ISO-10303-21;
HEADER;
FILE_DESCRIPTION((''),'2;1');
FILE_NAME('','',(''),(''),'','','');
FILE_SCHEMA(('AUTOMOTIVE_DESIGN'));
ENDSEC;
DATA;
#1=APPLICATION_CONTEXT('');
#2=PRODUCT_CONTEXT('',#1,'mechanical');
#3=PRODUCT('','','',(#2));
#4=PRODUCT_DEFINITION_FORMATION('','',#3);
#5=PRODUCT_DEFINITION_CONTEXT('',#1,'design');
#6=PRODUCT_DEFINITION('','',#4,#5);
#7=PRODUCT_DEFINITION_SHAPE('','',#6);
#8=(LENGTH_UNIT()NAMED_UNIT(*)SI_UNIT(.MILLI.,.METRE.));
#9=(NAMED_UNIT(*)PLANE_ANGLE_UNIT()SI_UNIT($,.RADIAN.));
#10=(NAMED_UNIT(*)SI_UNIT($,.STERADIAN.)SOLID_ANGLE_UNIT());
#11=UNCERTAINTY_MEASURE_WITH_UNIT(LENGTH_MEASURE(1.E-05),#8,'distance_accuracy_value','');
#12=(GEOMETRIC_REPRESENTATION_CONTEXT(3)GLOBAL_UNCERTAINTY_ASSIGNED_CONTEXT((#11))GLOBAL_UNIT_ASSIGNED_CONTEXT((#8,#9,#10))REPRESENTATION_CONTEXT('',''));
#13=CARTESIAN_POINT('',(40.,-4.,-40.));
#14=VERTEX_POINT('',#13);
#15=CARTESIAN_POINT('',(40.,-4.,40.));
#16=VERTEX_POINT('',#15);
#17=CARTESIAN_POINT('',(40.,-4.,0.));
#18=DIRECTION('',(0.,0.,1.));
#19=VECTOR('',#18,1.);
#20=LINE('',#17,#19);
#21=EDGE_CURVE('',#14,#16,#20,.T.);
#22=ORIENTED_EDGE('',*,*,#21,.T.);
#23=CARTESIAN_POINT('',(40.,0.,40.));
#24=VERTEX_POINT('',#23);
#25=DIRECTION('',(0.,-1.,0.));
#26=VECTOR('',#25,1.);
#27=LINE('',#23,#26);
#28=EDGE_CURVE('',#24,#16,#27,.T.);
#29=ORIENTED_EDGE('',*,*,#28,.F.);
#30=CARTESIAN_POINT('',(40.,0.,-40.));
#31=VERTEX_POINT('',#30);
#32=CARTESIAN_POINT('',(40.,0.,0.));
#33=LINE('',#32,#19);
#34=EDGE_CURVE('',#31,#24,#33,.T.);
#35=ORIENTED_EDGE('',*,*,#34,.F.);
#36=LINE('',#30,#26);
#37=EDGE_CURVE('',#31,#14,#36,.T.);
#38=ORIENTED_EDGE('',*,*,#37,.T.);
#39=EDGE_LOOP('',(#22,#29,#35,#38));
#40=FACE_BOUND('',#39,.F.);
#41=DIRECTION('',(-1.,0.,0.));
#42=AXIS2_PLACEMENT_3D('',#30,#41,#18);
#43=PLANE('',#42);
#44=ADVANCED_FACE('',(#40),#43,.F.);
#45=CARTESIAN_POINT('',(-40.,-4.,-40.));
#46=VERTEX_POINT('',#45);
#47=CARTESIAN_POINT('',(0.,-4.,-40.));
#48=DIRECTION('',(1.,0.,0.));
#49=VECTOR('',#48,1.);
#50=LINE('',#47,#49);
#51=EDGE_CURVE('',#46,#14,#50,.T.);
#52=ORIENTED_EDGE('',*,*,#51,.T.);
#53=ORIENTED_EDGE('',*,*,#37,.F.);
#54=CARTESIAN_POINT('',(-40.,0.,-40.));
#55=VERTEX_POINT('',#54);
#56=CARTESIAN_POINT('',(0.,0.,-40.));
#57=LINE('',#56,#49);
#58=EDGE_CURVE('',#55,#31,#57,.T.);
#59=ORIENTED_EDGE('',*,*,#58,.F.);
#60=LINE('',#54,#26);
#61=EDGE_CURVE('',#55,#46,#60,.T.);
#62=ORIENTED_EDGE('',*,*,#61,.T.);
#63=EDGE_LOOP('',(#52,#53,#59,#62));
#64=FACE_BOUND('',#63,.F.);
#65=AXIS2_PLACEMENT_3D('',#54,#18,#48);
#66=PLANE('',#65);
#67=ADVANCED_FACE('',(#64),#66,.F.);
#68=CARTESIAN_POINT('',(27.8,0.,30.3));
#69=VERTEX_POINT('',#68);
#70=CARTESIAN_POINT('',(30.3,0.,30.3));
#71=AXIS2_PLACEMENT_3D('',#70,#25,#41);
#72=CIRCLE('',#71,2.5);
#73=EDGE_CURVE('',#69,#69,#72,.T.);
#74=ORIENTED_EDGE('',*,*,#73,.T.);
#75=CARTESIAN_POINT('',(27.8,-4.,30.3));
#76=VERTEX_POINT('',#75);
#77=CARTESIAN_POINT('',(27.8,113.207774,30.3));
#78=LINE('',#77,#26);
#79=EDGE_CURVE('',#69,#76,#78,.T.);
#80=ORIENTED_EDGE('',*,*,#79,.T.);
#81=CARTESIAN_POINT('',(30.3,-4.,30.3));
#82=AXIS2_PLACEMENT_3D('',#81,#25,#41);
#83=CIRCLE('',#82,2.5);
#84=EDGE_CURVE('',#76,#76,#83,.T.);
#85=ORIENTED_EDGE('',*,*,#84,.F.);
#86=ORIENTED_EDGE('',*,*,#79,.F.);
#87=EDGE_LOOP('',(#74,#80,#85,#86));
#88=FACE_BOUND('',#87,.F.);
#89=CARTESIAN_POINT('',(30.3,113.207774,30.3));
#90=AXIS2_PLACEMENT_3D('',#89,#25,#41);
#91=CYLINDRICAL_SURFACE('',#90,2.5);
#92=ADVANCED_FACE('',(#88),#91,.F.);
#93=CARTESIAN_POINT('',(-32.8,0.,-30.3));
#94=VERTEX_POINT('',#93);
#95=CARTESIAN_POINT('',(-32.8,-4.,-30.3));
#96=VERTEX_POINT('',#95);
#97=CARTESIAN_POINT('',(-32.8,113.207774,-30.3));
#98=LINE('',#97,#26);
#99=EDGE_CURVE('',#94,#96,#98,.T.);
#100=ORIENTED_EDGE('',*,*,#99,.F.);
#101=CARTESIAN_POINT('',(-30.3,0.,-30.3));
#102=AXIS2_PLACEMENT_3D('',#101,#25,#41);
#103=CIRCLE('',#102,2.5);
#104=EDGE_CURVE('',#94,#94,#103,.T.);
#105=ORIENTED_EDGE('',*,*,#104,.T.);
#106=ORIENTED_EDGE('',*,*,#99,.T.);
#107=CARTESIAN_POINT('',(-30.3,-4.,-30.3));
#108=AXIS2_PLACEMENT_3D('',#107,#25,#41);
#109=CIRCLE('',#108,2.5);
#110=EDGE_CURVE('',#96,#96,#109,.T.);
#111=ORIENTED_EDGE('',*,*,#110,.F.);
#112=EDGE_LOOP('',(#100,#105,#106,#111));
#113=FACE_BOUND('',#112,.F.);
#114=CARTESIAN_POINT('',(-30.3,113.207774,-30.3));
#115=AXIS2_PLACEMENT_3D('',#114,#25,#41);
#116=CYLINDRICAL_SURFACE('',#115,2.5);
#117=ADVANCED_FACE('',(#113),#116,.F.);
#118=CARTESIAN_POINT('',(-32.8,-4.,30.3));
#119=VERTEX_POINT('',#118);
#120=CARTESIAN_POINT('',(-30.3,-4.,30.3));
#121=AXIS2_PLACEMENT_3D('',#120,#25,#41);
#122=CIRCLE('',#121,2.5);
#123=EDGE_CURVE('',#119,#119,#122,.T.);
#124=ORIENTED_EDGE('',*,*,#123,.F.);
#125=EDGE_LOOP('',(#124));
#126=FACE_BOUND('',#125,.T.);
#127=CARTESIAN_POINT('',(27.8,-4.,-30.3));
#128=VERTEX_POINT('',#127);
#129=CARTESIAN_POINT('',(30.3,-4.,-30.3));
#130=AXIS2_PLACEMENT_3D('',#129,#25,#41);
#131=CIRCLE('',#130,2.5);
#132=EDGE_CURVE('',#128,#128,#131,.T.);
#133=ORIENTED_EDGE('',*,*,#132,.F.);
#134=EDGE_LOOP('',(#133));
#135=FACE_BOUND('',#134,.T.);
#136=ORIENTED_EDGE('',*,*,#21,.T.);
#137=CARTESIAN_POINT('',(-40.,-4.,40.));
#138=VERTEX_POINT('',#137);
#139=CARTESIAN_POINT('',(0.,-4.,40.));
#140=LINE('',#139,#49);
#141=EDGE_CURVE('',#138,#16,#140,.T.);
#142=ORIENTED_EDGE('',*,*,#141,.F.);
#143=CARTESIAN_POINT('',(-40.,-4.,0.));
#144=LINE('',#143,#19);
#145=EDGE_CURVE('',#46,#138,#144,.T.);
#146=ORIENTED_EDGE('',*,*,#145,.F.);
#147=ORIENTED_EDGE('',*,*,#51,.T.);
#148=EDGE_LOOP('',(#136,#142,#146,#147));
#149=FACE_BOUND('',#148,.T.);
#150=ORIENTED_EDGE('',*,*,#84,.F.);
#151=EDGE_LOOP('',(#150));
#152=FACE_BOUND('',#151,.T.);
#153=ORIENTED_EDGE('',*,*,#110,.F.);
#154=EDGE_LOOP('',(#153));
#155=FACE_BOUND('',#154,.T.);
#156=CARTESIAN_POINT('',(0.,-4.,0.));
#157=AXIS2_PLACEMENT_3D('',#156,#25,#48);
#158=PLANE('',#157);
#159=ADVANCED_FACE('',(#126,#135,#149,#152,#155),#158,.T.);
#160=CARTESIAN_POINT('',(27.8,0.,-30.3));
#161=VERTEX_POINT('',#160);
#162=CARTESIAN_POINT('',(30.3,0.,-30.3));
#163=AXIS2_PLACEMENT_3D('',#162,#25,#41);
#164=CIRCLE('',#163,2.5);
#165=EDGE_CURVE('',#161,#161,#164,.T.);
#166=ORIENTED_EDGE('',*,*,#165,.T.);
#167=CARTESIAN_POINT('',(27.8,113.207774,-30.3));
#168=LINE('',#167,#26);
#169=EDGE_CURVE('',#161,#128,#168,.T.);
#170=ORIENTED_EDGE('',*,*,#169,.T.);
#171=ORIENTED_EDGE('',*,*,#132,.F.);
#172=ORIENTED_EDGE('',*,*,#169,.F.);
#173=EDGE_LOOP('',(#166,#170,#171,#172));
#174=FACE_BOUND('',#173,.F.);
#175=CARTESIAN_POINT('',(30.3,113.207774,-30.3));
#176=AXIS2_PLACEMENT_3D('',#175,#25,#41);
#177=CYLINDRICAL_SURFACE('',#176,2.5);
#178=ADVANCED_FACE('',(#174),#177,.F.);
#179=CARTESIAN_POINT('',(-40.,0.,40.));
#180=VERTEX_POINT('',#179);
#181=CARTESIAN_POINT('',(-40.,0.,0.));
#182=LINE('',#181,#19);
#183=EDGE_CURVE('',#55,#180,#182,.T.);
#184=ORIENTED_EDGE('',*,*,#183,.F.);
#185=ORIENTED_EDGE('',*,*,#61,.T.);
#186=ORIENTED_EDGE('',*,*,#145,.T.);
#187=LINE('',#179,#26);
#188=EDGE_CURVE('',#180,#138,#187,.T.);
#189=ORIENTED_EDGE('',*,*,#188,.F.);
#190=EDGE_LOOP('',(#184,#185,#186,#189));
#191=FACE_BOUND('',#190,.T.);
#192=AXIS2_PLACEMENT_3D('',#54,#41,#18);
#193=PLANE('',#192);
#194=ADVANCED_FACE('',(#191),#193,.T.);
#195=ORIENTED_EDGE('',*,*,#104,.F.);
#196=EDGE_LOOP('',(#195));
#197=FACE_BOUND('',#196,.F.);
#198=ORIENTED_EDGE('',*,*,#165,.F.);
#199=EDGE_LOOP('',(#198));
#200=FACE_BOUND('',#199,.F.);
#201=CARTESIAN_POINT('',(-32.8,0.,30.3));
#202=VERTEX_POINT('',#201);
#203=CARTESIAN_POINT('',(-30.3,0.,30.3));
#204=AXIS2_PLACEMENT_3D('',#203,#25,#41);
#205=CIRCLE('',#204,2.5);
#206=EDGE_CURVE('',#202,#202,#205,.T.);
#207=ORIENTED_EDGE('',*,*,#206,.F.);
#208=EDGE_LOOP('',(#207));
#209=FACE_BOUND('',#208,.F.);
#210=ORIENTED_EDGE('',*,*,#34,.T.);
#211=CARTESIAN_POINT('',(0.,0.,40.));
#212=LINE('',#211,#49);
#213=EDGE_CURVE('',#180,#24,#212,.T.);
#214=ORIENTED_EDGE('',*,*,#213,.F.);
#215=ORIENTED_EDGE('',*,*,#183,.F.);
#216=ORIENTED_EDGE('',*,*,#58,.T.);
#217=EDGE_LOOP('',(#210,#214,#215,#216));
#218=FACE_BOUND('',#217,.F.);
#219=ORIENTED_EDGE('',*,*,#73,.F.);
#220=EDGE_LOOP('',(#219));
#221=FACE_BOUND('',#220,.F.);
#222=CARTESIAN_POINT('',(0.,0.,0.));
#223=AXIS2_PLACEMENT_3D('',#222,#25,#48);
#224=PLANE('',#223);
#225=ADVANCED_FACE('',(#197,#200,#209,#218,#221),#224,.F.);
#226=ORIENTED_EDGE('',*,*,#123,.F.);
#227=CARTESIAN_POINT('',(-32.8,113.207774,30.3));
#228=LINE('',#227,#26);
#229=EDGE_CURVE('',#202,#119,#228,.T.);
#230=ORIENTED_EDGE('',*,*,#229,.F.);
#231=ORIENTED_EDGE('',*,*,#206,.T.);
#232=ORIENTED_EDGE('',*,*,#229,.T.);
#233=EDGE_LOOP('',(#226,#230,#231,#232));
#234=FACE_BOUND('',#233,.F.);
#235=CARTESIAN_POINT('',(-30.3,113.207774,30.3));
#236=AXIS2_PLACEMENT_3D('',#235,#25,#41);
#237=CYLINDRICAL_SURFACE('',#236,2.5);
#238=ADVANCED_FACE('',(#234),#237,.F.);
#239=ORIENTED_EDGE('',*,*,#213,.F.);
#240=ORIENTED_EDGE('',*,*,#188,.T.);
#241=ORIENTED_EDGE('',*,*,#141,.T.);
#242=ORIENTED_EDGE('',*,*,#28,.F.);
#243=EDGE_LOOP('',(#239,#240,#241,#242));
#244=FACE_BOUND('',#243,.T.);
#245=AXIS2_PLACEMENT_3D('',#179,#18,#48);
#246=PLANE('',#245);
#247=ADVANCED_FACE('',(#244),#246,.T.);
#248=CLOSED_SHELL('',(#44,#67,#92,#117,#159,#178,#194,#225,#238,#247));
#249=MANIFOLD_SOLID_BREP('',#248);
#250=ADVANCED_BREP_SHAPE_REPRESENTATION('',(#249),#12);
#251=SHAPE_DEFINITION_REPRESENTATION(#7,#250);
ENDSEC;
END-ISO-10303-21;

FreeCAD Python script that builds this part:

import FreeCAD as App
import Part
import Sketcher
from FreeCAD import Vector
Q = App.Units.Quantity


def add_polygon(sketch, points):
    """Adds a closed chain of lines whose ends are joined by coincident constraints."""
    first, n = sketch.GeometryCount, len(points)
    for a, b in zip(points, points[1:] + points[:1]):
        sketch.addGeometry(Part.LineSegment(App.Vector(*a, 0), App.Vector(*b, 0)), False)
    for i in range(n):
        sketch.addConstraint(Sketcher.Constraint("Coincident", first + i, 2, first + (i + 1) % n, 1))

doc = App.newDocument("Part")
body = doc.addObject("PartDesign::Body", "Body")

# Sketch on XZ plane
sketch1 = body.newObject("Sketcher::SketchObject", "Sketch")
sketch1.AttachmentSupport = (doc.getObject("XZ_Plane"), [""])
sketch1.MapMode = "FlatFace"
add_polygon(sketch1, [(-40, 40), (-40, -40), (40, -40), (40, 40)])  # lines 0-3
sketch1.addConstraint([
    Sketcher.Constraint("Vertical", 0),
    Sketcher.Constraint("Horizontal", 1),
    Sketcher.Constraint("Vertical", 2),
    Sketcher.Constraint("Horizontal", 3),
    Sketcher.Constraint("Symmetric", 0, 2, 2, 2, -1, 1),
    Sketcher.Constraint("Equal", 3, 0),
    Sketcher.Constraint("DistanceX", 1, 1, 1, 2, Q("80 mm")),
])
pad1 = body.newObject("PartDesign::Pad", "Pad")
pad1.Profile = sketch1
pad1.Length = 4

# Sketch on XZ plane
sketch2 = body.newObject("Sketcher::SketchObject", "Sketch001")
sketch2.AttachmentSupport = (doc.getObject("XZ_Plane"), [""])
sketch2.MapMode = "FlatFace"
sketch2.addGeometry([
    Part.Circle(Vector(-30.3, 30.3, 0), Vector(0, 0, 1), 2.5),
    Part.Circle(Vector(30.3, 30.3, 0), Vector(0, 0, 1), 2.5),
    Part.Circle(Vector(30.3, -30.3, 0), Vector(0, 0, 1), 2.5),
    Part.Circle(Vector(-30.3, -30.3, 0), Vector(0, 0, 1), 2.5),
], False)
sketch2.addConstraint([
    Sketcher.Constraint("Equal", 0, 1),
    Sketcher.Constraint("Equal", 1, 2),
    Sketcher.Constraint("Equal", 2, 3),
    Sketcher.Constraint("Symmetric", 0, 3, 2, 3, -1, 1),
    Sketcher.Constraint("Symmetric", 1, 3, 3, 3, -1, 1),
    Sketcher.Constraint("Symmetric", 0, 3, 1, 3, -2),
    Sketcher.Constraint("Diameter", 0, Q("5 mm")),
    Sketcher.Constraint("DistanceX", 0, 3, -1, 1, Q("30.3 mm")),
    Sketcher.Constraint("DistanceY", -1, 1, 0, 3, Q("30.3 mm")),
])
doc.recompute()
hole = body.newObject("PartDesign::Hole", "Hole")
hole.Profile = sketch2
hole.ThreadType = "None"
hole.Diameter = 5
hole.DepthType = "ThroughAll"
hole.Reversed = True

doc.recompute()
